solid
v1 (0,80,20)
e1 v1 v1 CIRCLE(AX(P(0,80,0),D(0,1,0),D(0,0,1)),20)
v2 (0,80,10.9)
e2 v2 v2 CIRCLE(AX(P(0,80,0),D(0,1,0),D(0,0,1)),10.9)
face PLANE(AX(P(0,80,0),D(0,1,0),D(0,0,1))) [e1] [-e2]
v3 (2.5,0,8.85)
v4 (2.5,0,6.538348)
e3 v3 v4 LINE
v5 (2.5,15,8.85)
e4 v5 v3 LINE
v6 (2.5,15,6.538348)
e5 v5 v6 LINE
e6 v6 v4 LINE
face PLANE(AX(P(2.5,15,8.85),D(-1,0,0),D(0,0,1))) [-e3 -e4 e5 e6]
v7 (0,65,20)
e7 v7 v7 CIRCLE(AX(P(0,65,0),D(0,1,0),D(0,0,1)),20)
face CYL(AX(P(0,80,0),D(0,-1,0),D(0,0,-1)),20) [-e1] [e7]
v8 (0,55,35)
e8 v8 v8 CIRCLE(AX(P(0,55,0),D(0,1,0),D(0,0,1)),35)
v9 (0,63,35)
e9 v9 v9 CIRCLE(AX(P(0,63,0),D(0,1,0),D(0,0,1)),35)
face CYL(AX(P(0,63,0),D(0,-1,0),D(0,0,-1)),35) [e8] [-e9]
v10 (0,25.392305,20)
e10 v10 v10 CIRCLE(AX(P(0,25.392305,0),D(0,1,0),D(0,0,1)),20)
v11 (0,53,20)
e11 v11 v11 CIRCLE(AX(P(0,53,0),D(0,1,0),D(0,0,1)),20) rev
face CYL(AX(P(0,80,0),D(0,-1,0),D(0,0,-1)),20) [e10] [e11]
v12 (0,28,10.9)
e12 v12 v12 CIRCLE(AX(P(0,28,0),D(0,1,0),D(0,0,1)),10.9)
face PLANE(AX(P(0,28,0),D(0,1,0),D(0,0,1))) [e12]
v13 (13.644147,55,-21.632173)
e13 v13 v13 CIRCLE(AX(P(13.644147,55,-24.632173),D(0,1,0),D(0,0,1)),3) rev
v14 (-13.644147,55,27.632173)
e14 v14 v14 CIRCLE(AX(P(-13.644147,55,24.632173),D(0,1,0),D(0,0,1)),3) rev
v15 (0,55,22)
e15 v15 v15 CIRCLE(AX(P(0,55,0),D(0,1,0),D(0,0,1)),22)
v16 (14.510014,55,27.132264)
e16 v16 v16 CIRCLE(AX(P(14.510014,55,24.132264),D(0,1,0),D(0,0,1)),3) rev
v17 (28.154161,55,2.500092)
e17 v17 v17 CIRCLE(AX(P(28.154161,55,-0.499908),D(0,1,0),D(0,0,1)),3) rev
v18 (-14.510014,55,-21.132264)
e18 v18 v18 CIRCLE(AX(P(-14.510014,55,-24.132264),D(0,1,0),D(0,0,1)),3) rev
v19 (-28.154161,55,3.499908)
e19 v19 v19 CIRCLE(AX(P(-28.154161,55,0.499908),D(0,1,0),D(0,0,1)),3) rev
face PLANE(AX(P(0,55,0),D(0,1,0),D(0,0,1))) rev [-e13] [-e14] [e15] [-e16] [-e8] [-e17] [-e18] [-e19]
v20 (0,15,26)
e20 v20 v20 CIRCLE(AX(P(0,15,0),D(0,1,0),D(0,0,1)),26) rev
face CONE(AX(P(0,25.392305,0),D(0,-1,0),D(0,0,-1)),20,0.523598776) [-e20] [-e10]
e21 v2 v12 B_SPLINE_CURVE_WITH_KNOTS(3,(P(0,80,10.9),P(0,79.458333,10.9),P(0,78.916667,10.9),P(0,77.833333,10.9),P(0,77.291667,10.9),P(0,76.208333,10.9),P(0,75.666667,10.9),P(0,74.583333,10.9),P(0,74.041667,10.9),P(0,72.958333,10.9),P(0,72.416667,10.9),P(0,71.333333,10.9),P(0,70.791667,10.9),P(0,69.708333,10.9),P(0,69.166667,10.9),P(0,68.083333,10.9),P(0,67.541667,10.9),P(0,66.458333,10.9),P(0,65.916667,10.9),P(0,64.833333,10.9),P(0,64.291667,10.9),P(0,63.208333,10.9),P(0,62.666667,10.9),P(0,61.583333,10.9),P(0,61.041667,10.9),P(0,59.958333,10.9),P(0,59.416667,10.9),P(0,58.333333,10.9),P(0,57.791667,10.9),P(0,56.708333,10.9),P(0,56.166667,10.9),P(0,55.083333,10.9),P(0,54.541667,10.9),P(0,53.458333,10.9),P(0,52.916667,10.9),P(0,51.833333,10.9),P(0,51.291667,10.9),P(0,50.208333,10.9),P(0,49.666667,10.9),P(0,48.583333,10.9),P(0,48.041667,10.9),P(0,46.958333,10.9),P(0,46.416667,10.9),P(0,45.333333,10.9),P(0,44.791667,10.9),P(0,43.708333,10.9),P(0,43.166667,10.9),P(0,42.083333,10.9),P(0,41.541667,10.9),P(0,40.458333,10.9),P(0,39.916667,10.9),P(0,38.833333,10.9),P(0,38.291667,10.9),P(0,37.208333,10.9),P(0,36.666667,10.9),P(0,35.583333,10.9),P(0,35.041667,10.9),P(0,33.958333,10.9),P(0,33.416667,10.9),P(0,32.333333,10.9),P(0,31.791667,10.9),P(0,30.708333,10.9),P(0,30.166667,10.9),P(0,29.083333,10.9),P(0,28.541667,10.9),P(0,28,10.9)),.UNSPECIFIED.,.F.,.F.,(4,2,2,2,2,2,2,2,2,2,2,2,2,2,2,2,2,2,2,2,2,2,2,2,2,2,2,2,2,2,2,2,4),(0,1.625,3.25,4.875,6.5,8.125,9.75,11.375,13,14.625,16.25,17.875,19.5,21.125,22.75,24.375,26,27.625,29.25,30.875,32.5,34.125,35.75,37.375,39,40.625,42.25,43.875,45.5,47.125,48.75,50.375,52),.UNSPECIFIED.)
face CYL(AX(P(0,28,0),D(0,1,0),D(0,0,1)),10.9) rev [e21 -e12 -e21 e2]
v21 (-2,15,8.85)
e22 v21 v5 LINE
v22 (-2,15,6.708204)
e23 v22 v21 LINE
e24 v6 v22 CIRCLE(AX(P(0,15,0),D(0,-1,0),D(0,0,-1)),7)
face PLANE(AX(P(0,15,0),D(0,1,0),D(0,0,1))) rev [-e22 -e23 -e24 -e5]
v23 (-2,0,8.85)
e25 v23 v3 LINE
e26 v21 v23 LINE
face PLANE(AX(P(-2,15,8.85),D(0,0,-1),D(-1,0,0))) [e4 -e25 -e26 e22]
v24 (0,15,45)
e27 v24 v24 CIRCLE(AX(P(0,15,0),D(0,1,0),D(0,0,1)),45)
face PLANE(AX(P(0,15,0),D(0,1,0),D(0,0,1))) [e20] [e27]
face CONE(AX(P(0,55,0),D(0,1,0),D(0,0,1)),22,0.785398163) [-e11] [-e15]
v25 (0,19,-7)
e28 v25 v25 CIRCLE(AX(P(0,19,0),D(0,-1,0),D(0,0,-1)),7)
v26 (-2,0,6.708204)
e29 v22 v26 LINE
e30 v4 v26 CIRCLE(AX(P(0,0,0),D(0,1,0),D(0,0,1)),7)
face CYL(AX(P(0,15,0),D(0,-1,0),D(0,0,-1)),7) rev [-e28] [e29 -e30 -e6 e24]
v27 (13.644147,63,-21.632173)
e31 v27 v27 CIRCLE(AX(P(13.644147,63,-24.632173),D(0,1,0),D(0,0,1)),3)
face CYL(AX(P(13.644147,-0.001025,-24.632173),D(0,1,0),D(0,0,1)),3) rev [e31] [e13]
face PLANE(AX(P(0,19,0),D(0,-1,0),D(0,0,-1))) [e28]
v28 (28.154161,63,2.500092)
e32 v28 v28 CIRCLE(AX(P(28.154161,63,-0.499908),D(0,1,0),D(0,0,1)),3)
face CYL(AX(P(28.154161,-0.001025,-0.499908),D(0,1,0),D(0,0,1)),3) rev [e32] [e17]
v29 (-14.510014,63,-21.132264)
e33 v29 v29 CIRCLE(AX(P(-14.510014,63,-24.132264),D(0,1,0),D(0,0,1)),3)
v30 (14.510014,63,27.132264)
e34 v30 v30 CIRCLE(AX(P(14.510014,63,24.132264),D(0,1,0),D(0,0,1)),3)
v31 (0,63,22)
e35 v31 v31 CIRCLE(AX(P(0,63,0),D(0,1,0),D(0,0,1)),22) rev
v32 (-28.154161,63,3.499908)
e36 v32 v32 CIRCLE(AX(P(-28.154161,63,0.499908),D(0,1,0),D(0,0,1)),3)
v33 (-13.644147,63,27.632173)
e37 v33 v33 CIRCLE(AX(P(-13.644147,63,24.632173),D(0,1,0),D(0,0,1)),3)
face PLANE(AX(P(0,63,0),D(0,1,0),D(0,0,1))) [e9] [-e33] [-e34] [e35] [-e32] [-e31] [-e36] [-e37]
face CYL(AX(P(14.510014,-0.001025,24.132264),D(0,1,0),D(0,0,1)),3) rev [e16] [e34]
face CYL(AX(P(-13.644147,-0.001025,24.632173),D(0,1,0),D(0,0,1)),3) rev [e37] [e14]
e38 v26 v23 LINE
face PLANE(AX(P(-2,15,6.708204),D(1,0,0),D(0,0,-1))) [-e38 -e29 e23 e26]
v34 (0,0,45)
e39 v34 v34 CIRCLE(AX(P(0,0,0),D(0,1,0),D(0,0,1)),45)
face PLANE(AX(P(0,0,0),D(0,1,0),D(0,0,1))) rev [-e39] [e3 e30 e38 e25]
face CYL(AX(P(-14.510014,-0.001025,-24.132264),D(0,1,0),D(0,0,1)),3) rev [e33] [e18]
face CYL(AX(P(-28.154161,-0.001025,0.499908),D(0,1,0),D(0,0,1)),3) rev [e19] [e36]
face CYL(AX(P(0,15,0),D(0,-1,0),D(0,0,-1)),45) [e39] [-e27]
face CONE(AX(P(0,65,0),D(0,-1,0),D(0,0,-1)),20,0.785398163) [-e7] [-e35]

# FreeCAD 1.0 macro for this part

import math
import FreeCAD as App
import Part
import Sketcher
Q = App.Units.Quantity


def edges_at(feature, points):
    """Names of the edges that pass closest to the given points."""
    edges = feature.Shape.Edges
    near = lambda p: min(range(len(edges)), key=lambda i: edges[i].distToShape(Part.Vertex(*p))[0])
    return sorted({f"Edge{near(p) + 1}" for p in points})

doc = App.newDocument("Part")
body = doc.addObject("PartDesign::Body", "Body")

sketch1 = body.newObject("Sketcher::SketchObject", "Sketch")
sketch1.AttachmentSupport = (doc.getObject("XZ_Plane"), [""])
sketch1.MapMode = "FlatFace"
sketch1.addGeometry(Part.Circle(App.Vector(0, 0, 0), App.Vector(0, 0, 1), 45), False)
sketch1.addGeometry(Part.LineSegment(App.Vector(-2, 8.85, 0), App.Vector(-2, 6.708204, 0)), False)
sketch1.addGeometry(Part.ArcOfCircle(Part.Circle(App.Vector(0, 0, 0), App.Vector(0, 0, 1), 7), math.radians(106.60155), math.radians(429.075168)), False)
sketch1.addGeometry(Part.LineSegment(App.Vector(2.5, 6.538348, 0), App.Vector(2.5, 8.85, 0)), False)
sketch1.addGeometry(Part.LineSegment(App.Vector(2.5, 8.85, 0), App.Vector(-2, 8.85, 0)), False)
sketch1.addConstraint(Sketcher.Constraint("Coincident", 1, 2, 2, 1))
sketch1.addConstraint(Sketcher.Constraint("Coincident", 2, 2, 3, 1))
sketch1.addConstraint(Sketcher.Constraint("Coincident", 3, 2, 4, 1))
sketch1.addConstraint(Sketcher.Constraint("Coincident", 4, 2, 1, 1))
sketch1.addConstraint(Sketcher.Constraint("Vertical", 1))
sketch1.addConstraint(Sketcher.Constraint("Vertical", 3))
sketch1.addConstraint(Sketcher.Constraint("Horizontal", 4))
sketch1.addConstraint(Sketcher.Constraint("Coincident", 0, 3, -1, 1))
sketch1.addConstraint(Sketcher.Constraint("Coincident", 2, 3, -1, 1))
sketch1.addConstraint(Sketcher.Constraint("Diameter", 0, Q("90 mm")))
sketch1.addConstraint(Sketcher.Constraint("Radius", 2, Q("7 mm")))
sketch1.addConstraint(Sketcher.Constraint("DistanceX", 4, 2, 4, 1, Q("4.5 mm")))
sketch1.addConstraint(Sketcher.Constraint("DistanceX", 1, 2, -1, 1, Q("2 mm")))
sketch1.addConstraint(Sketcher.Constraint("DistanceY", -1, 1, 3, 2, Q("8.85 mm")))
pad1 = body.newObject("PartDesign::Pad", "Pad")
pad1.Profile = sketch1
pad1.Length = 15
pad1.Reversed = True

sketch2 = body.newObject("Sketcher::SketchObject", "Sketch001")
sketch2.AttachmentSupport = (doc.getObject("XZ_Plane"), [""])
sketch2.MapMode = "FlatFace"
sketch2.AttachmentOffset = App.Placement(App.Vector(0, 0, -15), App.Rotation())
sketch2.addGeometry(Part.Circle(App.Vector(0, 0, 0), App.Vector(0, 0, 1), 20), False)
sketch2.addConstraint(Sketcher.Constraint("Coincident", 0, 3, -1, 1))
sketch2.addConstraint(Sketcher.Constraint("Diameter", 0, Q("40 mm")))
pad2 = body.newObject("PartDesign::Pad", "Pad001")
pad2.Profile = sketch2
pad2.Length = 65
pad2.Reversed = True

sketch3 = body.newObject("Sketcher::SketchObject", "Sketch002")
sketch3.AttachmentSupport = (doc.getObject("XZ_Plane"), [""])
sketch3.MapMode = "FlatFace"
sketch3.AttachmentOffset = App.Placement(App.Vector(0, 0, -80), App.Rotation())
sketch3.addGeometry(Part.Circle(App.Vector(0, 0, 0), App.Vector(0, 0, 1), 10.9), False)
sketch3.addConstraint(Sketcher.Constraint("Coincident", 0, 3, -1, 1))
sketch3.addConstraint(Sketcher.Constraint("Diameter", 0, Q("21.8 mm")))
pocket1 = body.newObject("PartDesign::Pocket", "Pocket")
pocket1.Profile = sketch3
pocket1.Length = 52
pocket1.Reversed = True

sketch4 = body.newObject("Sketcher::SketchObject", "Sketch003")
sketch4.AttachmentSupport = (doc.getObject("XZ_Plane"), [""])
sketch4.MapMode = "FlatFace"
sketch4.AttachmentOffset = App.Placement(App.Vector(0, 0, -63), App.Rotation())
sketch4.addGeometry(Part.Circle(App.Vector(0, 0, 0), App.Vector(0, 0, 1), 35), False)
sketch4.addGeometry(Part.Circle(App.Vector(0, 0, 0), App.Vector(0, 0, 1), 10.9), False)
sketch4.addConstraint(Sketcher.Constraint("Coincident", 0, 3, -1, 1))
sketch4.addConstraint(Sketcher.Constraint("Coincident", 1, 3, -1, 1))
sketch4.addConstraint(Sketcher.Constraint("Diameter", 0, Q("70 mm")))
sketch4.addConstraint(Sketcher.Constraint("Diameter", 1, Q("21.8 mm")))
pad3 = body.newObject("PartDesign::Pad", "Pad002")
pad3.Profile = sketch4
pad3.Length = 8
doc.recompute()

chamfer = body.newObject("PartDesign::Chamfer", "Chamfer")
chamfer.Base = (pad3, edges_at(pad3, [(0, 55, -20), (0, 63, -20)]))
chamfer.Size = 2
doc.recompute()

chamfer2 = body.newObject("PartDesign::Chamfer", "Chamfer001")
chamfer2.Base = (chamfer, edges_at(chamfer, [(0, 15, -20)]))
chamfer2.ChamferType = "Two distances"
chamfer2.Size = 6
chamfer2.Size2 = 10.392305
chamfer2.FlipDirection = True

sketch5 = body.newObject("Sketcher::SketchObject", "Sketch004")
sketch5.AttachmentSupport = (doc.getObject("XZ_Plane"), [""])
sketch5.MapMode = "FlatFace"
sketch5.AttachmentOffset = App.Placement(App.Vector(0, 0, -15), App.Rotation())
sketch5.addGeometry(Part.Circle(App.Vector(0, 0, 0), App.Vector(0, 0, 1), 7), False)
sketch5.addConstraint(Sketcher.Constraint("Coincident", 0, 3, -1, 1))
sketch5.addConstraint(Sketcher.Constraint("Diameter", 0, Q("14 mm")))
pocket2 = body.newObject("PartDesign::Pocket", "Pocket001")
pocket2.Profile = sketch5
pocket2.Length = 4

sketch6 = body.newObject("Sketcher::SketchObject", "Sketch005")
sketch6.AttachmentSupport = (doc.getObject("XZ_Plane"), [""])
sketch6.MapMode = "FlatFace"
sketch6.AttachmentOffset = App.Placement(App.Vector(0, 0, -63), App.Rotation())
sketch6.addGeometry(Part.Circle(App.Vector(-28.154161, 0.499908, 0), App.Vector(0, 0, 1), 3), False)
sketch6.addConstraint(Sketcher.Constraint("Diameter", 0, Q("6 mm")))
sketch6.addConstraint(Sketcher.Constraint("DistanceX", 0, 3, -1, 1, Q("28.154161 mm")))
sketch6.addConstraint(Sketcher.Constraint("DistanceY", -1, 1, 0, 3, Q("0.499908 mm")))
pocket3 = body.newObject("PartDesign::Pocket", "Pocket002")
pocket3.Profile = sketch6
pocket3.Type = "UpToFirst"
pocket3.Reversed = True

sketch7 = body.newObject("Sketcher::SketchObject", "Sketch006")
sketch7.AttachmentSupport = (doc.getObject("XZ_Plane"), [""])
sketch7.MapMode = "FlatFace"
sketch7.AttachmentOffset = App.Placement(App.Vector(0, 0, -63), App.Rotation())
sketch7.addGeometry(Part.Circle(App.Vector(-14.510014, -24.132264, 0), App.Vector(0, 0, 1), 3), False)
sketch7.addConstraint(Sketcher.Constraint("Diameter", 0, Q("6 mm")))
sketch7.addConstraint(Sketcher.Constraint("DistanceX", 0, 3, -1, 1, Q("14.510014 mm")))
sketch7.addConstraint(Sketcher.Constraint("DistanceY", 0, 3, -1, 1, Q("24.132264 mm")))
pocket4 = body.newObject("PartDesign::Pocket", "Pocket003")
pocket4.Profile = sketch7
pocket4.Type = "UpToFirst"
pocket4.Reversed = True

sketch8 = body.newObject("Sketcher::SketchObject", "Sketch007")
sketch8.AttachmentSupport = (doc.getObject("XZ_Plane"), [""])
sketch8.MapMode = "FlatFace"
sketch8.AttachmentOffset = App.Placement(App.Vector(0, 0, -63), App.Rotation())
sketch8.addGeometry(Part.Circle(App.Vector(13.644147, -24.632173, 0), App.Vector(0, 0, 1), 3), False)
sketch8.addConstraint(Sketcher.Constraint("Diameter", 0, Q("6 mm")))
sketch8.addConstraint(Sketcher.Constraint("DistanceX", -1, 1, 0, 3, Q("13.644147 mm")))
sketch8.addConstraint(Sketcher.Constraint("DistanceY", 0, 3, -1, 1, Q("24.632173 mm")))
pocket5 = body.newObject("PartDesign::Pocket", "Pocket004")
pocket5.Profile = sketch8
pocket5.Type = "UpToFirst"
pocket5.Reversed = True

sketch9 = body.newObject("Sketcher::SketchObject", "Sketch008")
sketch9.AttachmentSupport = (doc.getObject("XZ_Plane"), [""])
sketch9.MapMode = "FlatFace"
sketch9.AttachmentOffset = App.Placement(App.Vector(0, 0, -63), App.Rotation())
sketch9.addGeometry(Part.Circle(App.Vector(28.154161, -0.499908, 0), App.Vector(0, 0, 1), 3), False)
sketch9.addConstraint(Sketcher.Constraint("Diameter", 0, Q("6 mm")))
sketch9.addConstraint(Sketcher.Constraint("DistanceX", -1, 1, 0, 3, Q("28.154161 mm")))
sketch9.addConstraint(Sketcher.Constraint("DistanceY", 0, 3, -1, 1, Q("0.499908 mm")))
pocket6 = body.newObject("PartDesign::Pocket", "Pocket005")
pocket6.Profile = sketch9
pocket6.Type = "UpToFirst"
pocket6.Reversed = True

sketch10 = body.newObject("Sketcher::SketchObject", "Sketch009")
sketch10.AttachmentSupport = (doc.getObject("XZ_Plane"), [""])
sketch10.MapMode = "FlatFace"
sketch10.AttachmentOffset = App.Placement(App.Vector(0, 0, -63), App.Rotation())
sketch10.addGeometry(Part.Circle(App.Vector(14.510014, 24.132264, 0), App.Vector(0, 0, 1), 3), False)
sketch10.addConstraint(Sketcher.Constraint("Diameter", 0, Q("6 mm")))
sketch10.addConstraint(Sketcher.Constraint("DistanceX", -1, 1, 0, 3, Q("14.510014 mm")))
sketch10.addConstraint(Sketcher.Constraint("DistanceY", -1, 1, 0, 3, Q("24.132264 mm")))
pocket7 = body.newObject("PartDesign::Pocket", "Pocket006")
pocket7.Profile = sketch10
pocket7.Type = "UpToFirst"
pocket7.Reversed = True

sketch11 = body.newObject("Sketcher::SketchObject", "Sketch010")
sketch11.AttachmentSupport = (doc.getObject("XZ_Plane"), [""])
sketch11.MapMode = "FlatFace"
sketch11.AttachmentOffset = App.Placement(App.Vector(0, 0, -63), App.Rotation())
sketch11.addGeometry(Part.Circle(App.Vector(-13.644147, 24.632173, 0), App.Vector(0, 0, 1), 3), False)
sketch11.addConstraint(Sketcher.Constraint("Diameter", 0, Q("6 mm")))
sketch11.addConstraint(Sketcher.Constraint("DistanceX", 0, 3, -1, 1, Q("13.644147 mm")))
sketch11.addConstraint(Sketcher.Constraint("DistanceY", -1, 1, 0, 3, Q("24.632173 mm")))
pocket8 = body.newObject("PartDesign::Pocket", "Pocket007")
pocket8.Profile = sketch11
pocket8.Type = "UpToFirst"
pocket8.Reversed = True

doc.recompute()
